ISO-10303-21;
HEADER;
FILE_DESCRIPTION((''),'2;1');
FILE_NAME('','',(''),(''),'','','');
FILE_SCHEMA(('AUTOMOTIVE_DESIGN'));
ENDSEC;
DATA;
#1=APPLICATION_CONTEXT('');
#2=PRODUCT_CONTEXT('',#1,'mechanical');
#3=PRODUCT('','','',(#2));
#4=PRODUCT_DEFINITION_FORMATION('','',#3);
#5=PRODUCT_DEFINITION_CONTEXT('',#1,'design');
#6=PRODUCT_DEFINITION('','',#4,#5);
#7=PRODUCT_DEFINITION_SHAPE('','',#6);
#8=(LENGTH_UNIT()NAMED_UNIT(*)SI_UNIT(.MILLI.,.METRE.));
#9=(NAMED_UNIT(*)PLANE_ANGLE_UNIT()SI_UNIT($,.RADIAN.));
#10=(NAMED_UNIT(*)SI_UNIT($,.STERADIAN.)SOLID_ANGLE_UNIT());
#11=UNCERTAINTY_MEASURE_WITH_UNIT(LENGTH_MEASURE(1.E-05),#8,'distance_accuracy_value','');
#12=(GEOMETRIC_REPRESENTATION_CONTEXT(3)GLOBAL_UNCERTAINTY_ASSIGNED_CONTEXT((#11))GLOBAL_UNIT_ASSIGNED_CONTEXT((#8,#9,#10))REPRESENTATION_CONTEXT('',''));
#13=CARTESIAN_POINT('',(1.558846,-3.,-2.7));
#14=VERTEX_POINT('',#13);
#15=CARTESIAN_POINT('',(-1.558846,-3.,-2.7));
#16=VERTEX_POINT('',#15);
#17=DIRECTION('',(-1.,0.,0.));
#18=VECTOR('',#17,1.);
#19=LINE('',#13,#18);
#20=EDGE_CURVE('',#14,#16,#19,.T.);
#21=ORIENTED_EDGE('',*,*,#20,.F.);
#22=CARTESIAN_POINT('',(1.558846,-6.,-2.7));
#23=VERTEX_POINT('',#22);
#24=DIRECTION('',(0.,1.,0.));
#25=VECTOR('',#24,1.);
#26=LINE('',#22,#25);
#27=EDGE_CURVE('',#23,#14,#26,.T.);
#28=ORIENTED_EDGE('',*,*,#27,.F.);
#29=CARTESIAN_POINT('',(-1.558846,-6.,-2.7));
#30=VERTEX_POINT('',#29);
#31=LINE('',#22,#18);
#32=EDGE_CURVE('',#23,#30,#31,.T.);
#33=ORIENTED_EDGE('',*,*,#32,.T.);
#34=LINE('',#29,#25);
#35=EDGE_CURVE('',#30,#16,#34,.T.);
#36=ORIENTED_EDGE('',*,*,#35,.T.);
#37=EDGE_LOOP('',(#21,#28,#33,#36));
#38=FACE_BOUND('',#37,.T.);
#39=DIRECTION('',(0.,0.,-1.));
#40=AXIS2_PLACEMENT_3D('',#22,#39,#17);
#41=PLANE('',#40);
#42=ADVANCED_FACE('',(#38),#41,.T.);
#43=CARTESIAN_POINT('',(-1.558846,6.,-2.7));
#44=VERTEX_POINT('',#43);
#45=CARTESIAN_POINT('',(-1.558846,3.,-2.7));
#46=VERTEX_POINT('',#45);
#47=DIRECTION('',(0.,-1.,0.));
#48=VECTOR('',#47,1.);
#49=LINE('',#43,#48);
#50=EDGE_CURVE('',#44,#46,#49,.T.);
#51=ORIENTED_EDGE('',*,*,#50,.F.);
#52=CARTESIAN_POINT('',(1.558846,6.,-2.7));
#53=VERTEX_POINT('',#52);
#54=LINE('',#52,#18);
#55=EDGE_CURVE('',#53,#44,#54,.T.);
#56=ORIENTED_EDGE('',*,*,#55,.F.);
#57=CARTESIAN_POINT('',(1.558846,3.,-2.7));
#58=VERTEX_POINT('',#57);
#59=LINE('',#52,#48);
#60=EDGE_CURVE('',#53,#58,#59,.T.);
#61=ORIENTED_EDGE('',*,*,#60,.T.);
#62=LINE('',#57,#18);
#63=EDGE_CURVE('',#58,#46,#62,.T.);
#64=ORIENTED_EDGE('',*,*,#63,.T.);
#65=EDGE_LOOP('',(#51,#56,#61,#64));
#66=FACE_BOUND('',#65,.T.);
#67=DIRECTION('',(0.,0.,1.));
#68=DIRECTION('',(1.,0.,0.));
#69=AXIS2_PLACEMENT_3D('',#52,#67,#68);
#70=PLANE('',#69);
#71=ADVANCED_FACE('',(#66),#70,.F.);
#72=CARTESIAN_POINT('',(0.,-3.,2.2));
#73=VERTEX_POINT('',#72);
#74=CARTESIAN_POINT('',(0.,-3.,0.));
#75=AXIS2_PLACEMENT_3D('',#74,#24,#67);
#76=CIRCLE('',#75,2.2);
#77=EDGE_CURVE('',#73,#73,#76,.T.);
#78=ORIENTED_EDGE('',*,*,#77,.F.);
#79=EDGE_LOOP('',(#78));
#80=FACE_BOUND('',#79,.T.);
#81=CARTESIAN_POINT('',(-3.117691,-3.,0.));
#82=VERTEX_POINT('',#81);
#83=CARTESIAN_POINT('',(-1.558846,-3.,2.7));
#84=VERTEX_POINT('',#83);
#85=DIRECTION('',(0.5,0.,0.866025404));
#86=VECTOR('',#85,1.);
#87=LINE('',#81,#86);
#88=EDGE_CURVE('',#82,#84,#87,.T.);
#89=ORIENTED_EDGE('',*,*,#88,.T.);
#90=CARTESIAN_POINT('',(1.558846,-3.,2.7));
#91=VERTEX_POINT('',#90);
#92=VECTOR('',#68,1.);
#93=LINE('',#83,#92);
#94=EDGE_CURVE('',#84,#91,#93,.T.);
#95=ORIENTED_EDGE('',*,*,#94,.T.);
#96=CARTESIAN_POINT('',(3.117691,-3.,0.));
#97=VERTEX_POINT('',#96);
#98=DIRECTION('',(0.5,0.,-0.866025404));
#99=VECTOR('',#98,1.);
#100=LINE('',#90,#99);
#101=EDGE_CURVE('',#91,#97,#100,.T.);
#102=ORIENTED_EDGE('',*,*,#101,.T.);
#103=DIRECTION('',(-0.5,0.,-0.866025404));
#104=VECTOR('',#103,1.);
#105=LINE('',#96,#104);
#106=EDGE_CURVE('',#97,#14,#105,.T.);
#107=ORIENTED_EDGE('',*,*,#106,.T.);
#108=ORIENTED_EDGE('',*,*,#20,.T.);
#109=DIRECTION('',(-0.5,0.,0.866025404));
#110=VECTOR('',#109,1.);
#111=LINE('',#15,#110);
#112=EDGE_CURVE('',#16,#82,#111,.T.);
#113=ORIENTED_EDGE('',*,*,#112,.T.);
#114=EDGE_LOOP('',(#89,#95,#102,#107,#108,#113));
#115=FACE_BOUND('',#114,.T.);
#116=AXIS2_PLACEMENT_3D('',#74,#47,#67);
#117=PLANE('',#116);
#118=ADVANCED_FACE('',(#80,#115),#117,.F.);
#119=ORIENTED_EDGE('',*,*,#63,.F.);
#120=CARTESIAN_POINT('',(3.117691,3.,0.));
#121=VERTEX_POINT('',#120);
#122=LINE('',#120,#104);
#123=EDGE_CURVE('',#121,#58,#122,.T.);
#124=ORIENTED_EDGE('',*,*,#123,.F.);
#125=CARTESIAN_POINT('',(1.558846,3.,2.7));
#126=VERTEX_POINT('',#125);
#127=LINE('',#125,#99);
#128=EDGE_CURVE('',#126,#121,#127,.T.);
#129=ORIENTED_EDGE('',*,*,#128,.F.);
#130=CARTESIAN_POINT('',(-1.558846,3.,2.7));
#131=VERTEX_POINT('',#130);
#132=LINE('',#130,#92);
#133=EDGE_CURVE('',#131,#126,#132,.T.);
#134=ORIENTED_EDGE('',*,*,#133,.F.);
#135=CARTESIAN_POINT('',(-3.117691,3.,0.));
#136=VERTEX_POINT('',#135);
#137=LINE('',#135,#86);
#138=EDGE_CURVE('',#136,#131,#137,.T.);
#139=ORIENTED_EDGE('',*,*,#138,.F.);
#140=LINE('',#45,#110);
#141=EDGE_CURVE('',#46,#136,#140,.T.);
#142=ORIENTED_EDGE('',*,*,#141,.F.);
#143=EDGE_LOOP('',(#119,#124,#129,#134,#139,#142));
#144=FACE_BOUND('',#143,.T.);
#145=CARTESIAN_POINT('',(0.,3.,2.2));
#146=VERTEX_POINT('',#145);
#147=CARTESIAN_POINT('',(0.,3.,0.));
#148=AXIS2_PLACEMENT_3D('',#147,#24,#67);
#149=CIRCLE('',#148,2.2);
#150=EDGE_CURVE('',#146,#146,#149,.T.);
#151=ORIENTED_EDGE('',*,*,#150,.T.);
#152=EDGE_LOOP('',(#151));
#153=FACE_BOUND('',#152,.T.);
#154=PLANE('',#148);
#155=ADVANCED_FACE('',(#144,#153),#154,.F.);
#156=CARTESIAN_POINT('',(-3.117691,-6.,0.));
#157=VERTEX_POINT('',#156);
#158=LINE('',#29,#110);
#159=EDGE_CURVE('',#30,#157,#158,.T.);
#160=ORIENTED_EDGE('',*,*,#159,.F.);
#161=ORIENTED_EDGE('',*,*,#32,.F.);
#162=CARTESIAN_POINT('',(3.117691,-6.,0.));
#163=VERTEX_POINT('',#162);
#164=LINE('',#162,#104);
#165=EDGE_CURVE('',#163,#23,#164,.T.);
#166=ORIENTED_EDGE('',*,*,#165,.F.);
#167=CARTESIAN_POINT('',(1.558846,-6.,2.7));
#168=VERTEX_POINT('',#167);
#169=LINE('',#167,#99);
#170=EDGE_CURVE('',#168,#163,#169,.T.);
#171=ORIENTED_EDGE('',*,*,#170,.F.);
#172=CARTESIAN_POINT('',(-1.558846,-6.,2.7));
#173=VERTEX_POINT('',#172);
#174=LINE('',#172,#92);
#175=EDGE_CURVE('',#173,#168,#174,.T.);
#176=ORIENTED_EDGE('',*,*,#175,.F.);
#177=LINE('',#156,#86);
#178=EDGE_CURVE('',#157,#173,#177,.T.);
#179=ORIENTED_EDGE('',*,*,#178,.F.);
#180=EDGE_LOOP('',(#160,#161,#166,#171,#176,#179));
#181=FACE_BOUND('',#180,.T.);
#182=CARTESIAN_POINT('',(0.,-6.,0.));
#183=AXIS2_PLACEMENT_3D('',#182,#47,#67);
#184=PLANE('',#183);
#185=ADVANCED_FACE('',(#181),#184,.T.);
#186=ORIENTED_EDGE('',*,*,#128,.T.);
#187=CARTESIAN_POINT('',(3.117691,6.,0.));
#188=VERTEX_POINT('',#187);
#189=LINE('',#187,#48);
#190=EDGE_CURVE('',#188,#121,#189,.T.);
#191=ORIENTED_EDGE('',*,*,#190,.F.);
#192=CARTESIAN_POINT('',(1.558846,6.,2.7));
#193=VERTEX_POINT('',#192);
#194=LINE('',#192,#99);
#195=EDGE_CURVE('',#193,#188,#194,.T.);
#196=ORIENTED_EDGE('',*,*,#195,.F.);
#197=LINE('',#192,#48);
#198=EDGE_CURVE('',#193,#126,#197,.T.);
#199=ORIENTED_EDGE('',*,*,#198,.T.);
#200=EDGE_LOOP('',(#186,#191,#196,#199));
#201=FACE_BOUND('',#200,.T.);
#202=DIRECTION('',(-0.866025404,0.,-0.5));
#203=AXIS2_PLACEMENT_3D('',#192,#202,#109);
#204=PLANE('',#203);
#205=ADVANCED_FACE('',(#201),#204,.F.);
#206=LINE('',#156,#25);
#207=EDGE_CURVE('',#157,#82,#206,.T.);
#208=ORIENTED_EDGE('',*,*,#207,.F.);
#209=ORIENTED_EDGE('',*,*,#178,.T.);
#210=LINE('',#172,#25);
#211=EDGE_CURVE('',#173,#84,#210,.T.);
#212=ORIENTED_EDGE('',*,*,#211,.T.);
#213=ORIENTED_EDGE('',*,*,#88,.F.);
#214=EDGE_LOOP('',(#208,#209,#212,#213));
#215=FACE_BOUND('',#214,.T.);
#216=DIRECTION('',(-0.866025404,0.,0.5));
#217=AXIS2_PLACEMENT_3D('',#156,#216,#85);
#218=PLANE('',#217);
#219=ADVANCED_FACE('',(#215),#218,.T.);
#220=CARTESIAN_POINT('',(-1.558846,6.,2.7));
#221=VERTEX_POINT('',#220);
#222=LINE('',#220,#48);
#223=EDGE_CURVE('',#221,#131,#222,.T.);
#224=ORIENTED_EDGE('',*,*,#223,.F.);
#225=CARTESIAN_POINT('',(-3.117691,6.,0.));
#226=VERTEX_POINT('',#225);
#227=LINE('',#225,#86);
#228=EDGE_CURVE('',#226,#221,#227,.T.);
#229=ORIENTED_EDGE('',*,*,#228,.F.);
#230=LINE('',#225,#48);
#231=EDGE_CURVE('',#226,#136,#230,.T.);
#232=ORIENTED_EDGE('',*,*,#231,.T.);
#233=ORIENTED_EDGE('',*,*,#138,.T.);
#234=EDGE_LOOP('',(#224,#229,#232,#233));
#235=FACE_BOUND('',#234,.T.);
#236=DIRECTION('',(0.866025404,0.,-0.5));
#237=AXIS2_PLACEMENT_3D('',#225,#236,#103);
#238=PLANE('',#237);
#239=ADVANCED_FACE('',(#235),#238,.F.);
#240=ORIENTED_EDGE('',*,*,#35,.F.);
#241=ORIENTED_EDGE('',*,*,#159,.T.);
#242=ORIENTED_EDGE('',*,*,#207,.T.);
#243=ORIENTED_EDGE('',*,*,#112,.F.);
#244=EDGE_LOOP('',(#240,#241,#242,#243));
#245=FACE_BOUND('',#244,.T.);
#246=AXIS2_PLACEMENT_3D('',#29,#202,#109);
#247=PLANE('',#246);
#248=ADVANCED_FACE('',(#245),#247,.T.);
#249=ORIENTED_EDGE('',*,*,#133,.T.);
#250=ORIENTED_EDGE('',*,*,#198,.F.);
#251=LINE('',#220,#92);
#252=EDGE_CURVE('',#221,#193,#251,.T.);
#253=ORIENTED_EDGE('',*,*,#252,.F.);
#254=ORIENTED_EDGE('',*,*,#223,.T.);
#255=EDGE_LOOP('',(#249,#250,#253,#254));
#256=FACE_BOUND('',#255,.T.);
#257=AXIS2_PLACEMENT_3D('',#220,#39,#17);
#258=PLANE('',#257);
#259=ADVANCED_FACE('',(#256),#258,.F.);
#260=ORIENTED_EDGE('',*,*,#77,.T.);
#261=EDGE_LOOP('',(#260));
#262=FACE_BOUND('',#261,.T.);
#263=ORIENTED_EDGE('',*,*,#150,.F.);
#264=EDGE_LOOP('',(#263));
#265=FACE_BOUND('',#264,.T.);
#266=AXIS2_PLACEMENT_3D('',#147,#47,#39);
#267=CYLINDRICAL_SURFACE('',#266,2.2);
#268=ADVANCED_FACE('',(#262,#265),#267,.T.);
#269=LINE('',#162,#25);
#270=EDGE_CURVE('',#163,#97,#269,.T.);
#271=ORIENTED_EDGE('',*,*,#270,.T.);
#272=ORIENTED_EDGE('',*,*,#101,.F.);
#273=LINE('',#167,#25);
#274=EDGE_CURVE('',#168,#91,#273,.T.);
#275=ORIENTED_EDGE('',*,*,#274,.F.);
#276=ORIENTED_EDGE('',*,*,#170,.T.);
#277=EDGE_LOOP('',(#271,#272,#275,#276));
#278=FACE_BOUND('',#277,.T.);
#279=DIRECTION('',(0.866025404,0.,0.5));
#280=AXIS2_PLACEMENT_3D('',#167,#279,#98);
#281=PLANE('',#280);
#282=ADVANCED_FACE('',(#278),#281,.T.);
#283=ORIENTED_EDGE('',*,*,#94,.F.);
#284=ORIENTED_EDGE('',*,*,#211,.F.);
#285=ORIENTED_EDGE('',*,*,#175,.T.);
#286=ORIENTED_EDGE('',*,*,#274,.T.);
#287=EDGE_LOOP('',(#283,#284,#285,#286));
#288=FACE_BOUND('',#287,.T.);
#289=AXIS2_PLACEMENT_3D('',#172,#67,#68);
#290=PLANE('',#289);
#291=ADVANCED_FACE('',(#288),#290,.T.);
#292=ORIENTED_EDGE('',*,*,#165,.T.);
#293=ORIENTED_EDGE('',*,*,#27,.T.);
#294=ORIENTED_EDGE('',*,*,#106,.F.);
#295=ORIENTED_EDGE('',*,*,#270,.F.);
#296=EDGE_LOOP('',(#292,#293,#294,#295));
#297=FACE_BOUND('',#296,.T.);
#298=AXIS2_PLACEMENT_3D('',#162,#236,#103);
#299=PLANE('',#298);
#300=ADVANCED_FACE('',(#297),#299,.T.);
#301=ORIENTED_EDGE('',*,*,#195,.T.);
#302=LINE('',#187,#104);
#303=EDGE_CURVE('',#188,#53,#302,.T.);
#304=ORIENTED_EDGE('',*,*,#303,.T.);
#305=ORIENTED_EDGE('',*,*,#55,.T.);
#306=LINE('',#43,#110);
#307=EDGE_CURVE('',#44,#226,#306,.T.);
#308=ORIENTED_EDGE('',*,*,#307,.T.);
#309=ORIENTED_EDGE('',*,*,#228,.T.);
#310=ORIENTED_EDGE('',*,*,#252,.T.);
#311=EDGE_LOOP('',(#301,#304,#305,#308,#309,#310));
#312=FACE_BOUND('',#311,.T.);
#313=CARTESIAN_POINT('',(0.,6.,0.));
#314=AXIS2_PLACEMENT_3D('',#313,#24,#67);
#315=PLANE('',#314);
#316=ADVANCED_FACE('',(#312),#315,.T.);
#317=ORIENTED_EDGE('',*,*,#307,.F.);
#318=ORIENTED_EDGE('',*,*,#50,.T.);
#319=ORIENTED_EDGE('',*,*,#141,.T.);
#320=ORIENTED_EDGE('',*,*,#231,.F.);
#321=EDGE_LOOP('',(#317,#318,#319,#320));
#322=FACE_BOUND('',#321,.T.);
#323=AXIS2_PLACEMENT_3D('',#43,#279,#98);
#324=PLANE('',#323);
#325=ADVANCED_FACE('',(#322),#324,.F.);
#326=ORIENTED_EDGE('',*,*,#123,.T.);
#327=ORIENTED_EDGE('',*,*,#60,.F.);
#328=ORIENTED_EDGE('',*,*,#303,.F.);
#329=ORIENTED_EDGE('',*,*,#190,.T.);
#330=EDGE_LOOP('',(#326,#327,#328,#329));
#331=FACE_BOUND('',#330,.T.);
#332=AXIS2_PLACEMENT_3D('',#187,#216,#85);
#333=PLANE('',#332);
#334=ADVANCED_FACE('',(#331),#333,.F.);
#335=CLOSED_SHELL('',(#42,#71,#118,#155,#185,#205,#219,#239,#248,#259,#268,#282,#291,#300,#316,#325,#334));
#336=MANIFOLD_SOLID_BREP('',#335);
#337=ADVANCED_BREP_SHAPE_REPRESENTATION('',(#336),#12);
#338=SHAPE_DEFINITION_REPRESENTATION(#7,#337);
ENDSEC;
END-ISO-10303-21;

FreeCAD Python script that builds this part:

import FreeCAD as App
import Part
import Sketcher
from FreeCAD import Vector
Q = App.Units.Quantity

doc = App.newDocument("Part")
body = doc.addObject("PartDesign::Body", "Body")

sketch1 = body.newObject("Sketcher::SketchObject", "Sketch")
sketch1.AttachmentSupport = (doc.getObject("XZ_Plane"), [""])
sketch1.MapMode = "FlatFace"
sketch1.addGeometry(Part.Circle(Vector(0, 0, 0), Vector(0, 0, 1), 2.2), False)
sketch1.addConstraint([
    Sketcher.Constraint("Coincident", 0, 3, -1, 1),
    Sketcher.Constraint("Diameter", 0, 4.4),
])
pad1 = body.newObject("PartDesign::Pad", "Pad")
pad1.Profile = sketch1
pad1.Length = 3
pad1.Reversed = True

sketch2 = body.newObject("Sketcher::SketchObject", "Sketch001")
sketch2.AttachmentSupport = (doc.getObject("XZ_Plane"), [""])
sketch2.MapMode = "FlatFace"
sketch2.AttachmentOffset = App.Placement(Vector(0, 0, -3), App.Rotation())
sketch2.addGeometry([
    Part.LineSegment(Vector(-1.6, -2.7, 0), Vector(-3.1, 0, 0)),
    Part.LineSegment(Vector(-3.1, 0, 0), Vector(-1.6, 2.7, 0)),
    Part.LineSegment(Vector(-1.6, 2.7, 0), Vector(1.6, 2.7, 0)),
    Part.LineSegment(Vector(1.6, 2.7, 0), Vector(3.1, 0, 0)),
    Part.LineSegment(Vector(3.1, 0, 0), Vector(1.6, -2.7, 0)),
    Part.LineSegment(Vector(1.6, -2.7, 0), Vector(-1.6, -2.7, 0)),
], False)
sketch2.addConstraint([
    Sketcher.Constraint("Coincident", 0, 2, 1, 1),
    Sketcher.Constraint("Coincident", 1, 2, 2, 1),
    Sketcher.Constraint("Coincident", 2, 2, 3, 1),
    Sketcher.Constraint("Coincident", 3, 2, 4, 1),
    Sketcher.Constraint("Coincident", 4, 2, 5, 1),
    Sketcher.Constraint("Coincident", 5, 2, 0, 1),
    Sketcher.Constraint("Horizontal", 2),
    Sketcher.Constraint("Horizontal", 5),
    Sketcher.Constraint("Symmetric", 0, 2, 3, 2, -1, 1),
    Sketcher.Constraint("Symmetric", 1, 2, 4, 2, -1, 1),
    Sketcher.Constraint("PointOnObject", 0, 2, -1),
    Sketcher.Constraint("Parallel", 0, 3),
    Sketcher.Constraint("Vertical", 2, 2, 4, 2),
    Sketcher.Constraint("Angle", 0, Q("120 deg")),
    Sketcher.Constraint("DistanceY", -1, 1, 1, 2, 2.7),
    Sketcher.Constraint("DistanceX", 2, 1, 2, 2, 3.117691),
])
pad2 = body.newObject("PartDesign::Pad", "Pad001")
pad2.Profile = sketch2
pad2.Length = 3
pad2.Reversed = True
doc.recompute()

mirrored = body.newObject("PartDesign::Mirrored", "Mirrored")
mirrored.Originals = [pad1, pad2]
mirrored.MirrorPlane = (doc.getObject("XZ_Plane"), [""])
body.Tip = mirrored

doc.recompute()
